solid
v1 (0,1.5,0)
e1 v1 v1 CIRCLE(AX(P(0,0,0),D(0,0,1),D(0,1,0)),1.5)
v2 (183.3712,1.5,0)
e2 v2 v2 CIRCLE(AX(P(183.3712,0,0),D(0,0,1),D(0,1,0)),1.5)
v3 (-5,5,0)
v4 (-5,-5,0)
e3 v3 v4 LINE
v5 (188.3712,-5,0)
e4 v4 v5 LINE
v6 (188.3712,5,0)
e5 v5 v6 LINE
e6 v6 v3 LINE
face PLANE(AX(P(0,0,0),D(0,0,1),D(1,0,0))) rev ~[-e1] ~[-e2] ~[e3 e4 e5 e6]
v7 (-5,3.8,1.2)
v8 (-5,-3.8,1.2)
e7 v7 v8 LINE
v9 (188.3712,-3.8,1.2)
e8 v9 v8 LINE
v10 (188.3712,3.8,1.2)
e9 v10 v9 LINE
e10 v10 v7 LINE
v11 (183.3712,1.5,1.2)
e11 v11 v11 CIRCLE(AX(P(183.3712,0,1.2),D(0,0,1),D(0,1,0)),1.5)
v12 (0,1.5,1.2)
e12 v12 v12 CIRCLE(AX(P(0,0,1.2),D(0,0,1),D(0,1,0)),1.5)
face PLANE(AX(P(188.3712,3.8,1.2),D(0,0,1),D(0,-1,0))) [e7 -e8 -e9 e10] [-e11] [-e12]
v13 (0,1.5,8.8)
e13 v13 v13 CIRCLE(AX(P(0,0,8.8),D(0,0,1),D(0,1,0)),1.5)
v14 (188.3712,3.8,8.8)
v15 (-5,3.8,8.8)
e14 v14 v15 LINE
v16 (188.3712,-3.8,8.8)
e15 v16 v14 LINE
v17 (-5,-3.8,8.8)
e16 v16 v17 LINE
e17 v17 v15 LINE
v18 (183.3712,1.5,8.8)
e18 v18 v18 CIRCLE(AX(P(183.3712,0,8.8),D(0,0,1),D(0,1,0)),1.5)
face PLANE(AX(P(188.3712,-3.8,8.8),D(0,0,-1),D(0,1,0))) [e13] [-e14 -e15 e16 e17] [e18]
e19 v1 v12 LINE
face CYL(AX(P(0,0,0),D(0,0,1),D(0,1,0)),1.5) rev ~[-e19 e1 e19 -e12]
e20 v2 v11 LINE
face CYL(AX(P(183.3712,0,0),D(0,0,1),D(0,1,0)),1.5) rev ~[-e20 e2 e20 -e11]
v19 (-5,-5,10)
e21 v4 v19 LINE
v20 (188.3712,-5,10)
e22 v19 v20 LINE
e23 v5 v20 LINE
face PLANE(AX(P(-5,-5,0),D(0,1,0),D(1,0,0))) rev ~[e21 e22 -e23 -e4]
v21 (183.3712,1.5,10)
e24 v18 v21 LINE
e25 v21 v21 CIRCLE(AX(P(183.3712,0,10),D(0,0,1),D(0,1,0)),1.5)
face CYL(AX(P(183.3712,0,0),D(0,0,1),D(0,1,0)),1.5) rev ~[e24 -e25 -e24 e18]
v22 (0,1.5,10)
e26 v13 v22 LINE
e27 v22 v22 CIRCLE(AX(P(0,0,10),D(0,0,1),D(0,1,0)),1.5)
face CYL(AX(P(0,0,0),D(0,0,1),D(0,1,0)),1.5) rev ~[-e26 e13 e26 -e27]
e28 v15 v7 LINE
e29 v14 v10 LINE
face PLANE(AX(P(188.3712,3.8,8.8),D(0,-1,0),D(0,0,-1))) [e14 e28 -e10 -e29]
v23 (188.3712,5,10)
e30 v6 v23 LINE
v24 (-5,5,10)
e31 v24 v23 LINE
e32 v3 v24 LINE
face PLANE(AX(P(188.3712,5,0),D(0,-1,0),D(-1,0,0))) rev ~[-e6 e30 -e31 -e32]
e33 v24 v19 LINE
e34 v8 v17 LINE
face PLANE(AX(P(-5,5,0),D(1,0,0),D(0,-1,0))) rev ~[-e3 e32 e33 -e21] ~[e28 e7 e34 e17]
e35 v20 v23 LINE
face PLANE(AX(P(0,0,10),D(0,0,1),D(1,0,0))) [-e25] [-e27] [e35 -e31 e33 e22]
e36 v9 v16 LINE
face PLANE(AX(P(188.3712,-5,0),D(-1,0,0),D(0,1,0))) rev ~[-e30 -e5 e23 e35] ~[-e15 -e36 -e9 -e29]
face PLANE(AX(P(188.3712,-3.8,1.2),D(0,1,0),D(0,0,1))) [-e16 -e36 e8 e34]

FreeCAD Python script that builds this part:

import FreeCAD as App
import Part
import Sketcher
from FreeCAD import Vector

doc = App.newDocument("Part")
body = doc.addObject("PartDesign::Body", "Body")

# Sketch on XY plane
sketch1 = doc.addObject("Sketcher::SketchObject", "Sketch")
body.addObject(sketch1)
sketch1.AttachmentSupport = (doc.XY_Plane, [""])
sketch1.MapMode = "FlatFace"
sketch1.addGeometry(Part.LineSegment(Vector(188, 5, 0), Vector(-5, 5, 0)), False)
sketch1.addGeometry(Part.LineSegment(Vector(-5, 5, 0), Vector(-5, -5, 0)), False)
sketch1.addGeometry(Part.LineSegment(Vector(-5, -5, 0), Vector(188, -5, 0)), False)
sketch1.addGeometry(Part.LineSegment(Vector(188, -5, 0), Vector(188, 5, 0)), False)
sketch1.addConstraint(Sketcher.Constraint("Coincident", 0, 2, 1, 1))
sketch1.addConstraint(Sketcher.Constraint("Coincident", 1, 2, 2, 1))
sketch1.addConstraint(Sketcher.Constraint("Coincident", 2, 2, 3, 1))
sketch1.addConstraint(Sketcher.Constraint("Coincident", 3, 2, 0, 1))
sketch1.addConstraint(Sketcher.Constraint("Horizontal", 0))
sketch1.addConstraint(Sketcher.Constraint("Vertical", 1))
sketch1.addConstraint(Sketcher.Constraint("Horizontal", 2))
sketch1.addConstraint(Sketcher.Constraint("Vertical", 3))
sketch1.addConstraint(Sketcher.Constraint("DistanceY", 1, 2, 1, 1, 10.0))
sketch1.addConstraint(Sketcher.Constraint("DistanceX", 0, 2, -1, 1, 5.0))
sketch1.addConstraint(Sketcher.Constraint("DistanceY", -1, 1, 0, 2, 5.0))
sketch1.addConstraint(Sketcher.Constraint("DistanceX", 0, 2, 0, 1, 193.3712))
pad1 = doc.addObject("PartDesign::Pad", "Pad")
body.addObject(pad1)
pad1.Profile = sketch1
pad1.Length = 10

# Sketch on YZ plane
sketch2 = doc.addObject("Sketcher::SketchObject", "Sketch001")
body.addObject(sketch2)
sketch2.AttachmentSupport = (doc.YZ_Plane, [""])
sketch2.MapMode = "FlatFace"
sketch2.AttachmentOffset = App.Placement(Vector(0, 0, 188.3712), App.Rotation())
sketch2.addGeometry(Part.LineSegment(Vector(4, 1, 0), Vector(4, 9, 0)), False)
sketch2.addGeometry(Part.LineSegment(Vector(4, 9, 0), Vector(-4, 9, 0)), False)
sketch2.addGeometry(Part.LineSegment(Vector(-4, 9, 0), Vector(-4, 1, 0)), False)
sketch2.addGeometry(Part.LineSegment(Vector(-4, 1, 0), Vector(4, 1, 0)), False)
sketch2.addConstraint(Sketcher.Constraint("Coincident", 0, 2, 1, 1))
sketch2.addConstraint(Sketcher.Constraint("Coincident", 1, 2, 2, 1))
sketch2.addConstraint(Sketcher.Constraint("Coincident", 2, 2, 3, 1))
sketch2.addConstraint(Sketcher.Constraint("Coincident", 3, 2, 0, 1))
sketch2.addConstraint(Sketcher.Constraint("Vertical", 0))
sketch2.addConstraint(Sketcher.Constraint("Horizontal", 1))
sketch2.addConstraint(Sketcher.Constraint("Vertical", 2))
sketch2.addConstraint(Sketcher.Constraint("Horizontal", 3))
sketch2.addConstraint(Sketcher.Constraint("Equal", 3, 0))
sketch2.addConstraint(Sketcher.Constraint("DistanceY", -1, 1, 2, 2, 1.2))
sketch2.addConstraint(Sketcher.Constraint("DistanceX", 1, 2, 1, 1, 7.6))
sketch2.addConstraint(Sketcher.Constraint("DistanceX", -1, 1, 0, 2, 3.8))
pocket1 = doc.addObject("PartDesign::Pocket", "Pocket")
body.addObject(pocket1)
pocket1.Profile = sketch2
pocket1.Type = "ThroughAll"

# Sketch on XY plane
sketch3 = doc.addObject("Sketcher::SketchObject", "Sketch002")
body.addObject(sketch3)
sketch3.AttachmentSupport = (doc.XY_Plane, [""])
sketch3.MapMode = "FlatFace"
sketch3.addGeometry(Part.Circle(Vector(0, 0, 0), Vector(0, 0, 1), 1.5), False)
sketch3.addGeometry(Part.Circle(Vector(183.4, 0, 0), Vector(0, 0, 1), 1.5), False)
sketch3.addConstraint(Sketcher.Constraint("Coincident", 0, 3, -1, 1))
sketch3.addConstraint(Sketcher.Constraint("Equal", 0, 1))
sketch3.addConstraint(Sketcher.Constraint("PointOnObject", 1, 3, -1))
sketch3.addConstraint(Sketcher.Constraint("Diameter", 0, 3.0))
sketch3.addConstraint(Sketcher.Constraint("DistanceX", -1, 1, 1, 3, 183.3712))
doc.recompute()
hole = doc.addObject("PartDesign::Hole", "Hole")
body.addObject(hole)
hole.Profile = sketch3
hole.ThreadType = "None"
hole.Diameter = 3
hole.DepthType = "ThroughAll"
hole.Reversed = True

doc.recompute()
